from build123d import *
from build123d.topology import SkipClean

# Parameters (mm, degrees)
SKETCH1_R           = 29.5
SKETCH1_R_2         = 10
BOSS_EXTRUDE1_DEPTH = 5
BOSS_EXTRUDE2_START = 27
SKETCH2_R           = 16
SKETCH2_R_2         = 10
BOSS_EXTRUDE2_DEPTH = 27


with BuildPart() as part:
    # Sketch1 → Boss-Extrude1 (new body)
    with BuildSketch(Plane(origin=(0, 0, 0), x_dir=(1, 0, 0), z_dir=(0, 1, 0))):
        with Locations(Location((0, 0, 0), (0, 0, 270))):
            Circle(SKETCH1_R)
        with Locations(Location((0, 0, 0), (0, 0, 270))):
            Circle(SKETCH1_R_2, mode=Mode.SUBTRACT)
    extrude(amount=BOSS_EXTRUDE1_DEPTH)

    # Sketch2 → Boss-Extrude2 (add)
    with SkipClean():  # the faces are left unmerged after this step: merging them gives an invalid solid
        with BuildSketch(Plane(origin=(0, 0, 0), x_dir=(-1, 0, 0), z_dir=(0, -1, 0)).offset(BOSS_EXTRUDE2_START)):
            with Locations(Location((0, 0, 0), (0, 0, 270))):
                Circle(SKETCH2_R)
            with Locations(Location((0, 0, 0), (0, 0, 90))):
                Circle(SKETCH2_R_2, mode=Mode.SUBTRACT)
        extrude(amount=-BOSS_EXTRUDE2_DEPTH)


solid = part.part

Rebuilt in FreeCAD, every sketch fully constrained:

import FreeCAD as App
import Part
import Sketcher

V = App.Vector

doc = App.newDocument("Part")
params = doc.addObject("Spreadsheet::Sheet", "Params")
for row, (alias, value) in enumerate([
    ("sketch1_diameter", "59 mm"),
    ("sketch1_diameter2", "20 mm"),
    ("pad1_length", "5 mm"),
    ("sketch2_diameter", "32 mm"),
    ("sketch2_diameter2", "20 mm"),
    ("pad2_length", "27 mm"),
], start=1):
    params.set(f"A{row}", alias)
    params.set(f"B{row}", "=" + value)
    params.setAlias(f"B{row}", alias)

body = doc.addObject("PartDesign::Body", "Body")

# Sketch on XZ plane
sketch1 = body.newObject("Sketcher::SketchObject", "Sketch")
sketch1.AttachmentSupport = (doc.getObject("XZ_Plane"), [""])
sketch1.MapMode = "FlatFace"
sketch1.addGeometry([
    Part.Circle(V(0, 0, 0), V(0, 0, 1), 30),
    Part.Circle(V(0, 0, 0), V(0, 0, 1), 10),
], False)
sketch1.addConstraint([
    Sketcher.Constraint("Coincident", 0, 3, -1, 1),
    Sketcher.Constraint("Coincident", 1, 3, -1, 1),
    Sketcher.Constraint("Diameter", 0, 59.0),
    Sketcher.Constraint("Diameter", 1, 20.0),
])
sketch1.setExpression("Constraints[2]", "Params.sketch1_diameter")
sketch1.setExpression("Constraints[3]", "Params.sketch1_diameter2")
pad1 = body.newObject("PartDesign::Pad", "Pad")
pad1.Profile = sketch1
pad1.setExpression("Length", "Params.pad1_length")
pad1.Reversed = True

# Sketch on XZ plane
sketch2 = body.newObject("Sketcher::SketchObject", "Sketch001")
sketch2.AttachmentSupport = (doc.getObject("XZ_Plane"), [""])
sketch2.MapMode = "FlatFace"
sketch2.AttachmentOffset = App.Placement(V(0, 0, 27), App.Rotation())
sketch2.addGeometry([
    Part.Circle(V(0, 0, 0), V(0, 0, 1), 16),
    Part.Circle(V(0, 0, 0), V(0, 0, 1), 10),
], False)
sketch2.addConstraint([
    Sketcher.Constraint("Coincident", 0, 3, -1, 1),
    Sketcher.Constraint("Coincident", 1, 3, -1, 1),
    Sketcher.Constraint("Diameter", 0, 32.0),
    Sketcher.Constraint("Diameter", 1, 20.0),
])
sketch2.setExpression("Constraints[2]", "Params.sketch2_diameter")
sketch2.setExpression("Constraints[3]", "Params.sketch2_diameter2")
pad2 = body.newObject("PartDesign::Pad", "Pad001")
pad2.Profile = sketch2
pad2.setExpression("Length", "Params.pad2_length")
pad2.Reversed = True

doc.recompute()
